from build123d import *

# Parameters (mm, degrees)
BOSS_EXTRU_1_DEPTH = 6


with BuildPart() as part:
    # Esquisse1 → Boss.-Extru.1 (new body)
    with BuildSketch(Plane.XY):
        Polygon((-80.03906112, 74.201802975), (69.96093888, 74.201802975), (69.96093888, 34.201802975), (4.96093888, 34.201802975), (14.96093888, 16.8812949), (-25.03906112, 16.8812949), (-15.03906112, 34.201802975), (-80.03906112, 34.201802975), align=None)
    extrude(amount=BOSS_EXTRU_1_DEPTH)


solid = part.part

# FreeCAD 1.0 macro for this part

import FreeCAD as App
import Part
import Sketcher

V = App.Vector
Q = App.Units.Quantity


def add_polygon(sketch, points):
    """Adds a closed chain of lines whose ends are joined by coincident constraints."""
    first, n = sketch.GeometryCount, len(points)
    for a, b in zip(points, points[1:] + points[:1]):
        sketch.addGeometry(Part.LineSegment(App.Vector(*a, 0), App.Vector(*b, 0)), False)
    for i in range(n):
        sketch.addConstraint(Sketcher.Constraint("Coincident", first + i, 2, first + (i + 1) % n, 1))

doc = App.newDocument("Part")
body = doc.addObject("PartDesign::Body", "Body")

# Sketch on XY plane
sketch1 = doc.addObject("Sketcher::SketchObject", "Sketch")
body.addObject(sketch1)
sketch1.AttachmentSupport = (doc.XY_Plane, [""])
sketch1.MapMode = "FlatFace"
add_polygon(sketch1, [(69.960939, 74.201803), (-80.039061, 74.201803), (-80.039061, 34.201803), (-15.039061, 34.201803), (-25.039061, 16.881295), (14.960939, 16.881295), (4.960939, 34.201803), (69.960939, 34.201803)])  # lines 0-7
sketch1.addConstraint(Sketcher.Constraint("Horizontal", 0))
sketch1.addConstraint(Sketcher.Constraint("Vertical", 1))
sketch1.addConstraint(Sketcher.Constraint("Horizontal", 2))
sketch1.addConstraint(Sketcher.Constraint("Horizontal", 4))
sketch1.addConstraint(Sketcher.Constraint("Horizontal", 6))
sketch1.addConstraint(Sketcher.Constraint("Vertical", 7))
sketch1.addConstraint(Sketcher.Constraint("Horizontal", 2, 2, 5, 2))
sketch1.addConstraint(Sketcher.Constraint("Equal", 2, 6))
sketch1.addConstraint(Sketcher.Constraint("Equal", 4, 1))
sketch1.addConstraint(Sketcher.Constraint("Equal", 3, 5))
sketch1.addConstraint(Sketcher.Constraint("DistanceX", 0, 2, 0, 1, 150.0))
sketch1.addConstraint(Sketcher.Constraint("DistanceX", 2, 1, 2, 2, 65.0))
sketch1.addConstraint(Sketcher.Constraint("DistanceX", 4, 1, 4, 2, 40.0))
sketch1.addConstraint(Sketcher.Constraint("Angle", 3, Q("-120 deg")))
sketch1.addConstraint(Sketcher.Constraint("DistanceX", 0, 2, -1, 1, 80.039061))
sketch1.addConstraint(Sketcher.Constraint("DistanceY", -1, 1, 0, 2, 74.201803))
pad1 = doc.addObject("PartDesign::Pad", "Pad")
body.addObject(pad1)
pad1.Profile = sketch1
pad1.Length = 6

doc.recompute()
